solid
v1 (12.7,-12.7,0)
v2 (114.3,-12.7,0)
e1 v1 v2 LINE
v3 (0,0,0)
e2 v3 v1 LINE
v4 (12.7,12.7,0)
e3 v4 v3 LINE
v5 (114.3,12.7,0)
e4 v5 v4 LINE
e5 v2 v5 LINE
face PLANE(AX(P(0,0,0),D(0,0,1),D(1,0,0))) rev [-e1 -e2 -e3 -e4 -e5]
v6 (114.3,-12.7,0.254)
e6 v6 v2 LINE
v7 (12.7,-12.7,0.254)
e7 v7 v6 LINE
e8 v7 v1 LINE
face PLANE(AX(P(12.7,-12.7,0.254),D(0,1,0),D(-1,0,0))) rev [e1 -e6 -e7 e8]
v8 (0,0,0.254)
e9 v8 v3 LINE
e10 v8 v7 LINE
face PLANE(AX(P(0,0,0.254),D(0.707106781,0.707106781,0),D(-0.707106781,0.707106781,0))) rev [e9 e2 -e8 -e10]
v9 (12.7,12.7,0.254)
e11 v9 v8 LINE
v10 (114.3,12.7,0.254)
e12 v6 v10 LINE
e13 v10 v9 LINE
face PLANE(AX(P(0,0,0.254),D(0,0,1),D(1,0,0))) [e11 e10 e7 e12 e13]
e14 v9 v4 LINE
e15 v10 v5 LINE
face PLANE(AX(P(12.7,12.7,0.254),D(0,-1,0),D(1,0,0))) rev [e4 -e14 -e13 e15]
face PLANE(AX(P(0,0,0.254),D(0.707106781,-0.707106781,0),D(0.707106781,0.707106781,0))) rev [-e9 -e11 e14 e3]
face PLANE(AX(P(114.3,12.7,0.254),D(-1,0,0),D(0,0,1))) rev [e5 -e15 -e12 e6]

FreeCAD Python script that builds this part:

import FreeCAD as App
import Part
import Sketcher
Q = App.Units.Quantity


def add_polygon(sketch, points):
    """Adds a closed chain of lines whose ends are joined by coincident constraints."""
    first, n = sketch.GeometryCount, len(points)
    for a, b in zip(points, points[1:] + points[:1]):
        sketch.addGeometry(Part.LineSegment(App.Vector(*a, 0), App.Vector(*b, 0)), False)
    for i in range(n):
        sketch.addConstraint(Sketcher.Constraint("Coincident", first + i, 2, first + (i + 1) % n, 1))

doc = App.newDocument("Part")
body = doc.addObject("PartDesign::Body", "Body")

sketch1 = body.newObject("Sketcher::SketchObject", "Sketch")
sketch1.AttachmentSupport = (doc.getObject("XY_Plane"), [""])
sketch1.MapMode = "FlatFace"
add_polygon(sketch1, [(13, 13), (0, 0), (13, -13), (114, -13), (114, 13)])
sketch1.addConstraint([
    Sketcher.Constraint("Horizontal", 2),
    Sketcher.Constraint("Vertical", 3),
    Sketcher.Constraint("Horizontal", 4),
    Sketcher.Constraint("Coincident", 0, 2, -1, 1),
    Sketcher.Constraint("Symmetric", 1, 2, 4, 2, -1),
    Sketcher.Constraint("Perpendicular", 0, 1),
    Sketcher.Constraint("DistanceX", 2, 1, 2, 2, Q("4 in")),
    Sketcher.Constraint("DistanceY", 3, 1, 3, 2, Q("1 in")),
])
pad1 = body.newObject("PartDesign::Pad", "Pad")
pad1.Profile = sketch1
pad1.Length = Q("0.01 in")

doc.recompute()
